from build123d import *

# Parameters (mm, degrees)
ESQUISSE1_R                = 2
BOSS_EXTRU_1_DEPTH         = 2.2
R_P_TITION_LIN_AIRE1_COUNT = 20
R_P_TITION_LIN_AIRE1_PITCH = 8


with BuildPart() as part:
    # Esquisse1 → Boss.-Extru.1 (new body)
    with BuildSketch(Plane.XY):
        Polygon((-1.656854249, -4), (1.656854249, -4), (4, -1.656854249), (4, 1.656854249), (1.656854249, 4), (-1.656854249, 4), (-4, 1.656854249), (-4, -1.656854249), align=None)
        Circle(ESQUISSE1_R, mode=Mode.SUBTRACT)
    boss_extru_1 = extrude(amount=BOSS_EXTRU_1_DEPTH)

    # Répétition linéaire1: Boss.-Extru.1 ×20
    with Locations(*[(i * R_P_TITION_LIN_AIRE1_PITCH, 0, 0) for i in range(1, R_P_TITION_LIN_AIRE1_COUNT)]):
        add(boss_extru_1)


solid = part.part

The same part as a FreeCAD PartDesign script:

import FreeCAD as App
import Part
import Sketcher
Q = App.Units.Quantity

doc = App.newDocument("Part")
body = doc.addObject("PartDesign::Body", "Body")

# Sketch on XY plane
sketch1 = body.newObject("Sketcher::SketchObject", "Sketch")
sketch1.AttachmentSupport = (doc.getObject("XY_Plane"), [""])
sketch1.MapMode = "FlatFace"
sketch1.addGeometry([
    Part.LineSegment(App.Vector(-1.7, -4, 0), App.Vector(1.7, -4, 0)),  # 0
    Part.LineSegment(App.Vector(1.7, -4, 0), App.Vector(4, -1.7, 0)),  # 1
    Part.LineSegment(App.Vector(4, -1.7, 0), App.Vector(4, 1.7, 0)),  # 2
    Part.LineSegment(App.Vector(4, 1.7, 0), App.Vector(1.7, 4, 0)),  # 3
    Part.LineSegment(App.Vector(1.7, 4, 0), App.Vector(-1.7, 4, 0)),  # 4
    Part.LineSegment(App.Vector(-1.7, 4, 0), App.Vector(-4, 1.7, 0)),  # 5
    Part.LineSegment(App.Vector(-4, 1.7, 0), App.Vector(-4, -1.7, 0)),  # 6
    Part.LineSegment(App.Vector(-4, -1.7, 0), App.Vector(-1.7, -4, 0)),  # 7
    Part.Circle(App.Vector(0, 0, 0), App.Vector(0, 0, 1), 2),  # 8
], False)
sketch1.addConstraint([
    Sketcher.Constraint("Coincident", 0, 2, 1, 1),
    Sketcher.Constraint("Coincident", 1, 2, 2, 1),
    Sketcher.Constraint("Coincident", 2, 2, 3, 1),
    Sketcher.Constraint("Coincident", 3, 2, 4, 1),
    Sketcher.Constraint("Coincident", 4, 2, 5, 1),
    Sketcher.Constraint("Coincident", 5, 2, 6, 1),
    Sketcher.Constraint("Coincident", 6, 2, 7, 1),
    Sketcher.Constraint("Coincident", 7, 2, 0, 1),
    Sketcher.Constraint("Horizontal", 0),
    Sketcher.Constraint("Vertical", 2),
    Sketcher.Constraint("Horizontal", 4),
    Sketcher.Constraint("Vertical", 6),
    Sketcher.Constraint("Coincident", 8, 3, -1, 1),
    Sketcher.Constraint("Symmetric", 0, 2, 4, 2, -1, 1),
    Sketcher.Constraint("Symmetric", 1, 2, 5, 2, -1, 1),
    Sketcher.Constraint("Perpendicular", 1, 3),
    Sketcher.Constraint("Perpendicular", 5, 7),
    Sketcher.Constraint("Horizontal", 2, 2, 5, 2),
    Sketcher.Constraint("Horizontal", 1, 2, 6, 2),
    Sketcher.Constraint("Vertical", 0, 2, 3, 2),
    Sketcher.Constraint("Equal", 4, 2),
    Sketcher.Constraint("Diameter", 8, Q("4 mm")),
    Sketcher.Constraint("DistanceY", 0, 2, -1, 1, Q("4 mm")),
    Sketcher.Constraint("DistanceX", 0, 1, 0, 2, Q("3.313708 mm")),
])
pad1 = body.newObject("PartDesign::Pad", "Pad")
pad1.Profile = sketch1
pad1.Length = 2.2
doc.recompute()

linearpattern = body.newObject("PartDesign::LinearPattern", "LinearPattern")
linearpattern.Originals = [pad1]
linearpattern.Direction = (doc.getObject("X_Axis"), [""])
linearpattern.Mode = "offset"
linearpattern.Offset = 8
linearpattern.Occurrences = 20
body.Tip = linearpattern

doc.recompute()
